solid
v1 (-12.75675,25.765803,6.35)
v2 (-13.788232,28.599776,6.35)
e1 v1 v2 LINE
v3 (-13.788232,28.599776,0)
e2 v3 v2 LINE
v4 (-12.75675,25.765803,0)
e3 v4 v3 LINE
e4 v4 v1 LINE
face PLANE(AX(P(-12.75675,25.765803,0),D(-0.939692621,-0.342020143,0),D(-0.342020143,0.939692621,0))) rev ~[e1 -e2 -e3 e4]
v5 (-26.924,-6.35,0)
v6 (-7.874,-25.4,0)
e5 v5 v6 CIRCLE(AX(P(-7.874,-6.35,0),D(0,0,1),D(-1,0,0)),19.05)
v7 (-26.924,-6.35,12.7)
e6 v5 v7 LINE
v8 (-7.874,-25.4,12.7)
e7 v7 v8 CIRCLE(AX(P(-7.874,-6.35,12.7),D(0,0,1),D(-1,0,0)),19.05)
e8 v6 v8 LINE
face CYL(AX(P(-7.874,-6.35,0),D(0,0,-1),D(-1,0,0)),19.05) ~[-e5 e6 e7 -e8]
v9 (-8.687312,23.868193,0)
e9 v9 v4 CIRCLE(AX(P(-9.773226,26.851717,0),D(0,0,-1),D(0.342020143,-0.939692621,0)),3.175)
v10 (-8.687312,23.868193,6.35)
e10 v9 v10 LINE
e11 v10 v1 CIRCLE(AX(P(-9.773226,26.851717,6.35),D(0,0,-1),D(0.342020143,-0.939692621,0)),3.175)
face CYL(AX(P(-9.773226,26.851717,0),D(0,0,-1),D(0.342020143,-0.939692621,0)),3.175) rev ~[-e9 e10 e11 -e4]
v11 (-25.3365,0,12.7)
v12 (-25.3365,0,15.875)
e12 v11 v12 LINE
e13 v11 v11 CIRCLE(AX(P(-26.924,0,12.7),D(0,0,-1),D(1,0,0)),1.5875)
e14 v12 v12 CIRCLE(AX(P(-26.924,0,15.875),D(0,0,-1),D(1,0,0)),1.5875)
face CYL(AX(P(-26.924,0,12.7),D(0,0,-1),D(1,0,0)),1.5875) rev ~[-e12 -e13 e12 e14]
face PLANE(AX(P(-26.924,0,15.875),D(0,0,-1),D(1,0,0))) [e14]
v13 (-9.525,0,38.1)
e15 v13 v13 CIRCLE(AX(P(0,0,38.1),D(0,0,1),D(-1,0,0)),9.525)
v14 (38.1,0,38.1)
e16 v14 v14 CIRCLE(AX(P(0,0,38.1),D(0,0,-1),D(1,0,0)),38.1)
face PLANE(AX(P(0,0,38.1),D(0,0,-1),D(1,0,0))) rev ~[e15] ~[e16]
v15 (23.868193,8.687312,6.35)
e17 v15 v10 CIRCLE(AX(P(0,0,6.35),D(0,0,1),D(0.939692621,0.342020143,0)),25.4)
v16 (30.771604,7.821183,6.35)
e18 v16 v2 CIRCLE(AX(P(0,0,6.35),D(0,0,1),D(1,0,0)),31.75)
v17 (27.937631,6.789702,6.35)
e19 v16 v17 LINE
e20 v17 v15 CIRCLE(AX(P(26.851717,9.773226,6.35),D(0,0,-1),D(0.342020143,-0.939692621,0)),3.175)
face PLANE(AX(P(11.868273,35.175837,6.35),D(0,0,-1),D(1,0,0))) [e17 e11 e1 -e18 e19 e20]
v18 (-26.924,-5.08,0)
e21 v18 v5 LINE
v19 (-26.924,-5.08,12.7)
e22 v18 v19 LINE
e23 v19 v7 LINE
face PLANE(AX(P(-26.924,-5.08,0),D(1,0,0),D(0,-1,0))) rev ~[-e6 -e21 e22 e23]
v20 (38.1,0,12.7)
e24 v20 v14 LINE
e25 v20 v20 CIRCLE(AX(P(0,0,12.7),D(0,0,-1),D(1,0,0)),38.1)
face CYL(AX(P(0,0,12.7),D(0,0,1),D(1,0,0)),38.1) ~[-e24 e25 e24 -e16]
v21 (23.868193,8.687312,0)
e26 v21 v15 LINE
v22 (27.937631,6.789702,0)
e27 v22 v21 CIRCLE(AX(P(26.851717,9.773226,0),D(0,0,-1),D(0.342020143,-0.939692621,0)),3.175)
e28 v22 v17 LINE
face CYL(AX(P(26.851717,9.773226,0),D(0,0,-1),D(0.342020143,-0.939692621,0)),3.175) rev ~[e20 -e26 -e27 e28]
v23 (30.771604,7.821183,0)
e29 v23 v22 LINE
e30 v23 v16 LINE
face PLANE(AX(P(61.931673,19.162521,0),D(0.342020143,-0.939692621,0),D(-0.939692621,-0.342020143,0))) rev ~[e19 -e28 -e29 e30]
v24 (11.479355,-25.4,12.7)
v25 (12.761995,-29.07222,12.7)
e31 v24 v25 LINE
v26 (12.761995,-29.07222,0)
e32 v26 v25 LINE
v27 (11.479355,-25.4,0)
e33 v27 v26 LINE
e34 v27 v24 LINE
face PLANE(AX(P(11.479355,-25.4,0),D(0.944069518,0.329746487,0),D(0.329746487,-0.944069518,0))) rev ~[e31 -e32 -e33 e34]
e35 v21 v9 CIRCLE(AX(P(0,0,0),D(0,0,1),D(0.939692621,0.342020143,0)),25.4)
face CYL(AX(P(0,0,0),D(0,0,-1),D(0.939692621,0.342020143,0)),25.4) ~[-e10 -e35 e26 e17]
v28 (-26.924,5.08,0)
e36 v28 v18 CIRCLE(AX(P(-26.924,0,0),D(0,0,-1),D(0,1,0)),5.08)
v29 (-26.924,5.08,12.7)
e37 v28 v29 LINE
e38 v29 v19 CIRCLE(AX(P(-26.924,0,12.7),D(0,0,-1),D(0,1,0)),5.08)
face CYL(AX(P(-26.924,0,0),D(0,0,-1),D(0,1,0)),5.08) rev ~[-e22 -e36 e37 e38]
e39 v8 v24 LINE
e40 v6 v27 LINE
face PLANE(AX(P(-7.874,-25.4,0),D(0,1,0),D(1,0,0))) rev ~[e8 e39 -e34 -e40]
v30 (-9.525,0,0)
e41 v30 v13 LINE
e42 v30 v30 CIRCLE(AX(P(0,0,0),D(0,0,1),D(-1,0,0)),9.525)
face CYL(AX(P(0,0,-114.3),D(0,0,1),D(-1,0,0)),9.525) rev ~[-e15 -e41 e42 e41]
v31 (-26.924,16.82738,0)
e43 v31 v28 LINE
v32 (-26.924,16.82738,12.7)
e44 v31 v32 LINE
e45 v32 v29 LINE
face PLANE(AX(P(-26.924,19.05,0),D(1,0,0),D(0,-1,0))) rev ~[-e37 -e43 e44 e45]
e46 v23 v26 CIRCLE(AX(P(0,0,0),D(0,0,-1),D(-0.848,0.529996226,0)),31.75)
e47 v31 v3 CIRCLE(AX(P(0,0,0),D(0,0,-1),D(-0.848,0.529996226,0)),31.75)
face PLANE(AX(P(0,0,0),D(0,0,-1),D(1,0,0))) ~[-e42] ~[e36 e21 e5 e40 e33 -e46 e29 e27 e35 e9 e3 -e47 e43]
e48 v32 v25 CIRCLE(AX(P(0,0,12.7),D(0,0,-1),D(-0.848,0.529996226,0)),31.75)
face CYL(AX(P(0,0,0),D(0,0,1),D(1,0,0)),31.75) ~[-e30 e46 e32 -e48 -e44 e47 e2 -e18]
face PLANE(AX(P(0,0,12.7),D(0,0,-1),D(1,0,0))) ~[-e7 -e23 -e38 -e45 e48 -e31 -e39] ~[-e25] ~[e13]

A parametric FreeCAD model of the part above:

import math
import FreeCAD as App
import Part
import Sketcher
from FreeCAD import Vector
Q = App.Units.Quantity

doc = App.newDocument("Part")
params = doc.addObject("Spreadsheet::Sheet", "Params")
for row, (alias, value) in enumerate([
    ("sketch1_height", "1 in"),
    ("sketch1_width", "1.5 in"),
    ("sketch1_width2", "1.25 in"),
    ("revolution_angle", "360 deg"),
    ("sketch2_radius", "0.2 in"),
    ("sketch2_radius2", "0.75 in"),
    ("pocket1_length", "0.5 in"),
    ("sketch3_radius", "1 in"),
    ("sketch3_radius2", "0.125 in"),
    ("pocket2_length", "0.25 in"),
    ("sketch4_diameter", "0.75 in"),
    ("hole_diameter", "0.75 in"),
    ("sketch5_diameter", "0.125 in"),
    ("pocket3_length", "0.125 in"),
], start=1):
    params.set(f"A{row}", alias)
    params.set(f"B{row}", "=" + value)
    params.setAlias(f"B{row}", alias)

body = doc.addObject("PartDesign::Body", "Body")

# Sketch on XZ plane
sketch1 = body.newObject("Sketcher::SketchObject", "Sketch")
sketch1.AttachmentSupport = (doc.getObject("XZ_Plane"), [""])
sketch1.MapMode = "FlatFace"
sketch1.addGeometry([
    Part.LineSegment(Vector(0, 0, 0), Vector(32, 0, 0)),  # 0
    Part.LineSegment(Vector(32, 0, 0), Vector(32, 13, 0)),  # 1
    Part.LineSegment(Vector(32, 13, 0), Vector(38, 13, 0)),  # 2
    Part.LineSegment(Vector(38, 13, 0), Vector(38, 38, 0)),  # 3
    Part.LineSegment(Vector(38, 38, 0), Vector(0, 38, 0)),  # 4
    Part.LineSegment(Vector(0, 38, 0), Vector(0, 0, 0)),  # 5
], False)
sketch1.addConstraint([
    Sketcher.Constraint("Coincident", 0, 2, 1, 1),
    Sketcher.Constraint("Coincident", 1, 2, 2, 1),
    Sketcher.Constraint("Coincident", 2, 2, 3, 1),
    Sketcher.Constraint("Coincident", 3, 2, 4, 1),
    Sketcher.Constraint("Coincident", 4, 2, 5, 1),
    Sketcher.Constraint("Coincident", 5, 2, 0, 1),
    Sketcher.Constraint("Horizontal", 0),
    Sketcher.Constraint("Vertical", 1),
    Sketcher.Constraint("Horizontal", 2),
    Sketcher.Constraint("Vertical", 3),
    Sketcher.Constraint("Horizontal", 4),
    Sketcher.Constraint("Vertical", 5),
    Sketcher.Constraint("Coincident", 5, 2, -1, 1),
    Sketcher.Constraint("Equal", 4, 5),
    Sketcher.Constraint("DistanceY", 3, 1, 3, 2, Q("1 in")),
    Sketcher.Constraint("DistanceX", 4, 2, 4, 1, Q("1.5 in")),
    Sketcher.Constraint("DistanceX", 0, 1, 0, 2, Q("1.25 in")),
])
sketch1.setExpression("Constraints[14]", "Params.sketch1_height")
sketch1.setExpression("Constraints[15]", "Params.sketch1_width")
sketch1.setExpression("Constraints[16]", "Params.sketch1_width2")
revolution = body.newObject("PartDesign::Revolution", "Revolution")
revolution.Profile = sketch1
revolution.ReferenceAxis = (sketch1, ["V_Axis"])
revolution.setExpression("Angle", "Params.revolution_angle")

# Sketch on XY plane
sketch2 = body.newObject("Sketcher::SketchObject", "Sketch001")
sketch2.AttachmentSupport = (doc.getObject("XY_Plane"), [""])
sketch2.MapMode = "FlatFace"
sketch2.addGeometry([
    Part.LineSegment(Vector(11.5, -25.4, 0), Vector(12.8, -29.1, 0)),  # 0
    Part.LineSegment(Vector(12.8, -29.1, 0), Vector(20.2, -33.7, 0)),  # 1
    Part.LineSegment(Vector(20.2, -33.7, 0), Vector(-32.5, -29.2, 0)),  # 2
    Part.LineSegment(Vector(-32.5, -29.2, 0), Vector(-48.7, 19.1, 0)),  # 3
    Part.LineSegment(Vector(-48.7, 19.1, 0), Vector(-26.9, 19.1, 0)),  # 4
    Part.LineSegment(Vector(-26.9, 19.1, 0), Vector(-26.9, 5.1, 0)),  # 5
    Part.ArcOfCircle(Part.Circle(Vector(-26.9, 0, 0), Vector(0, 0, 1), 5.1), math.radians(-90), math.radians(90)),  # 6
    Part.LineSegment(Vector(-26.9, -5.1, 0), Vector(-26.9, -6.3, 0)),  # 7
    Part.ArcOfCircle(Part.Circle(Vector(-7.9, -6.3, 0), Vector(0, 0, 1), 19.1), math.radians(180), math.radians(270)),  # 8
    Part.LineSegment(Vector(-7.9, -25.4, 0), Vector(11.5, -25.4, 0)),  # 9
], False)
sketch2.addConstraint([
    Sketcher.Constraint("Coincident", 0, 2, 1, 1),
    Sketcher.Constraint("Coincident", 1, 2, 2, 1),
    Sketcher.Constraint("Coincident", 2, 2, 3, 1),
    Sketcher.Constraint("Coincident", 3, 2, 4, 1),
    Sketcher.Constraint("Coincident", 4, 2, 5, 1),
    Sketcher.Constraint("Coincident", 5, 2, 6, 2),
    Sketcher.Constraint("Coincident", 6, 1, 7, 1),
    Sketcher.Constraint("Tangent", 7, 2, 8, 1),
    Sketcher.Constraint("Tangent", 8, 2, 9, 1),
    Sketcher.Constraint("Coincident", 9, 2, 0, 1),
    Sketcher.Constraint("Horizontal", 4),
    Sketcher.Constraint("Vertical", 5),
    Sketcher.Constraint("Vertical", 7),
    Sketcher.Constraint("Horizontal", 9),
    Sketcher.Constraint("Symmetric", 5, 2, 6, 1, -1),
    Sketcher.Constraint("Vertical", 6, 3, 4, 2),
    Sketcher.Constraint("Radius", 6, Q("0.2 in")),
    Sketcher.Constraint("Radius", 8, Q("0.75 in")),
    Sketcher.Constraint("DistanceY", 8, 2, -1, 1, Q("1 in")),
    Sketcher.Constraint("DistanceY", 8, 3, 3, 2, Q("1 in")),
    Sketcher.Constraint("DistanceX", 6, 3, -1, 1, Q("1.06 in")),
    Sketcher.Constraint("Distance", 3, 50.917622),
    Sketcher.Constraint("DistanceX", 4, 1, 4, 2, 21.791267),
    Sketcher.Constraint("DistanceX", 9, 1, 9, 2, 19.353355),
    Sketcher.Constraint("DistanceY", 0, 2, -1, 1, 29.07222),
    Sketcher.Constraint("DistanceX", 2, 2, -1, 1, 32.539058),
    Sketcher.Constraint("DistanceX", 9, 2, 0, 2, 1.28264),
    Sketcher.Constraint("Distance", 1, 8.782274),
    Sketcher.Constraint("Distance", 2, 52.949145),
])
sketch2.setExpression("Constraints[16]", "Params.sketch2_radius")
sketch2.setExpression("Constraints[17]", "Params.sketch2_radius2")
pocket1 = body.newObject("PartDesign::Pocket", "Pocket")
pocket1.Profile = sketch2
pocket1.setExpression("Length", "Params.pocket1_length")
pocket1.Reversed = True

# Sketch on XY plane
sketch3 = body.newObject("Sketcher::SketchObject", "Sketch002")
sketch3.AttachmentSupport = (doc.getObject("XY_Plane"), [""])
sketch3.MapMode = "FlatFace"
sketch3.addGeometry([
    Part.ArcOfCircle(Part.Circle(Vector(0, 0, 0), Vector(0, 0, 1), 25.4), math.radians(20), math.radians(110)),  # 0
    Part.ArcOfCircle(Part.Circle(Vector(-9.8, 26.9, 0), Vector(0, 0, 1), 3.2), math.radians(-160), math.radians(-70)),  # 1
    Part.LineSegment(Vector(-12.8, 25.8, 0), Vector(-28.9, 70.1, 0)),  # 2
    Part.LineSegment(Vector(-28.9, 70.1, 0), Vector(61.9, 19.2, 0)),  # 3
    Part.LineSegment(Vector(61.9, 19.2, 0), Vector(27.9, 6.8, 0)),  # 4
    Part.ArcOfCircle(Part.Circle(Vector(26.9, 9.8, 0), Vector(0, 0, 1), 3.2), math.radians(-160), math.radians(-70)),  # 5
], False)
sketch3.addConstraint([
    Sketcher.Constraint("Tangent", 0, 2, 1, 2),
    Sketcher.Constraint("Tangent", 1, 1, 2, 1),
    Sketcher.Constraint("Coincident", 2, 2, 3, 1),
    Sketcher.Constraint("Coincident", 3, 2, 4, 1),
    Sketcher.Constraint("Tangent", 4, 2, 5, 2),
    Sketcher.Constraint("Tangent", 5, 1, 0, 1),
    Sketcher.Constraint("Coincident", 0, 3, -1, 1),
    Sketcher.Constraint("Equal", 1, 5),
    Sketcher.Constraint("Perpendicular", 2, 4),
    Sketcher.Constraint("Radius", 0, Q("1 in")),
    Sketcher.Constraint("Angle", 2, Q("110 deg")),
    Sketcher.Constraint("Radius", 1, Q("0.125 in")),
    Sketcher.Constraint("DistanceY", -1, 1, 4, 2, 6.789702),
    Sketcher.Constraint("DistanceX", 2, 2, 1, 1, 16.123498),
    Sketcher.Constraint("DistanceX", 1, 3, 3, 2, 71.704899),
    Sketcher.Constraint("DistanceX", 0, 2, -1, 1, 8.687312),
])
sketch3.setExpression("Constraints[9]", "Params.sketch3_radius")
sketch3.setExpression("Constraints[11]", "Params.sketch3_radius2")
pocket2 = body.newObject("PartDesign::Pocket", "Pocket001")
pocket2.Profile = sketch3
pocket2.setExpression("Length", "Params.pocket2_length")
pocket2.Reversed = True

# Sketch on XY plane
sketch4 = body.newObject("Sketcher::SketchObject", "Sketch003")
sketch4.AttachmentSupport = (doc.getObject("XY_Plane"), [""])
sketch4.MapMode = "FlatFace"
sketch4.addGeometry(Part.Circle(Vector(0, 0, 0), Vector(0, 0, 1), 10), False)
sketch4.addConstraint([
    Sketcher.Constraint("Coincident", 0, 3, -1, 1),
    Sketcher.Constraint("Diameter", 0, Q("0.75 in")),
])
sketch4.setExpression("Constraints[1]", "Params.sketch4_diameter")
doc.recompute()
hole = body.newObject("PartDesign::Hole", "Hole")
hole.Profile = sketch4
hole.ThreadType = "None"
hole.setExpression("Diameter", "Params.hole_diameter")
hole.DepthType = "ThroughAll"
hole.Reversed = True

# Sketch on XY plane
sketch5 = body.newObject("Sketcher::SketchObject", "Sketch004")
sketch5.AttachmentSupport = (doc.getObject("XY_Plane"), [""])
sketch5.MapMode = "FlatFace"
sketch5.AttachmentOffset = App.Placement(Vector(0, 0, 0.5 * 25.4), App.Rotation())
sketch5.addGeometry(Part.Circle(Vector(-26.9, 0, 0), Vector(0, 0, 1), 1.6), False)
sketch5.addConstraint([
    Sketcher.Constraint("PointOnObject", 0, 3, -1),
    Sketcher.Constraint("Diameter", 0, Q("0.125 in")),
    Sketcher.Constraint("DistanceX", 0, 3, -1, 1, Q("1.06 in")),
])
sketch5.setExpression("Constraints[1]", "Params.sketch5_diameter")
pocket3 = body.newObject("PartDesign::Pocket", "Pocket002")
pocket3.Profile = sketch5
pocket3.setExpression("Length", "Params.pocket3_length")
pocket3.Reversed = True

doc.recompute()
